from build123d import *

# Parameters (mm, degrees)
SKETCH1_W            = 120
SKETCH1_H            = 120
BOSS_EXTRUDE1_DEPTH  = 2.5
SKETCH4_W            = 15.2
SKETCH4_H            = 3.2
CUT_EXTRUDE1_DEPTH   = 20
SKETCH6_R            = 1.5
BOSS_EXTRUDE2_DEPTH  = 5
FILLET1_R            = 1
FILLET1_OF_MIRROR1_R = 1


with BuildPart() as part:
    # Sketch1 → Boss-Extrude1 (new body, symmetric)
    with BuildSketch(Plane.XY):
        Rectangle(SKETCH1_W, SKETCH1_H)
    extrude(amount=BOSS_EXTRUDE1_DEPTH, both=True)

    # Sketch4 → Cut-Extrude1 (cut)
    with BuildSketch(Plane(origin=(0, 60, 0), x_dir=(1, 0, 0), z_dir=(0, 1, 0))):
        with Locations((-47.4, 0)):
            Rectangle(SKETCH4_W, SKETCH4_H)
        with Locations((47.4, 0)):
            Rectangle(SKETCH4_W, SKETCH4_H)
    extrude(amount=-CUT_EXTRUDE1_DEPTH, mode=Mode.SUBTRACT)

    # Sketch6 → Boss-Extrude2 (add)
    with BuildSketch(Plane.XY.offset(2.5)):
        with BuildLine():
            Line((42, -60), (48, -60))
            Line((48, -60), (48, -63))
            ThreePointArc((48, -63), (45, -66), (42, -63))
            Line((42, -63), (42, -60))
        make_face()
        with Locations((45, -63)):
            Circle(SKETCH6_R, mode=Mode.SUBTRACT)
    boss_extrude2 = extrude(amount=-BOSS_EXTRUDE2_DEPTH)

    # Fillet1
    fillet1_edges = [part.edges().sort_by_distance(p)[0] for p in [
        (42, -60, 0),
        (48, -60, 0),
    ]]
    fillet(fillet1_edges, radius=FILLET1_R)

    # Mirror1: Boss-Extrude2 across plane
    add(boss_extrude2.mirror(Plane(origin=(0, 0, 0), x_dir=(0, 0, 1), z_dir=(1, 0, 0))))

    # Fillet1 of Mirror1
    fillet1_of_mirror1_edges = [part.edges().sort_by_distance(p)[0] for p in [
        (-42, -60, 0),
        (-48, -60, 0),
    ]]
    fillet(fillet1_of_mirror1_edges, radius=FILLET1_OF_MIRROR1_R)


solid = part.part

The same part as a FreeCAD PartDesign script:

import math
import FreeCAD as App
import Part
import Sketcher

V = App.Vector


def edges_at(feature, points):
    """Names of the edges that pass closest to the given points."""
    edges = feature.Shape.Edges
    near = lambda p: min(range(len(edges)), key=lambda i: edges[i].distToShape(Part.Vertex(*p))[0])
    return sorted({f"Edge{near(p) + 1}" for p in points})


def add_polygon(sketch, points):
    """Adds a closed chain of lines whose ends are joined by coincident constraints."""
    first, n = sketch.GeometryCount, len(points)
    for a, b in zip(points, points[1:] + points[:1]):
        sketch.addGeometry(Part.LineSegment(App.Vector(*a, 0), App.Vector(*b, 0)), False)
    for i in range(n):
        sketch.addConstraint(Sketcher.Constraint("Coincident", first + i, 2, first + (i + 1) % n, 1))

doc = App.newDocument("Part")
body = doc.addObject("PartDesign::Body", "Body")

# Sketch on XY plane
sketch1 = body.newObject("Sketcher::SketchObject", "Sketch")
sketch1.AttachmentSupport = (doc.getObject("XY_Plane"), [""])
sketch1.MapMode = "FlatFace"
add_polygon(sketch1, [(-60, 60), (-60, -60), (60, -60), (60, 60)])  # lines 0-3
sketch1.addConstraint(Sketcher.Constraint("Vertical", 0))
sketch1.addConstraint(Sketcher.Constraint("Horizontal", 1))
sketch1.addConstraint(Sketcher.Constraint("Vertical", 2))
sketch1.addConstraint(Sketcher.Constraint("Horizontal", 3))
sketch1.addConstraint(Sketcher.Constraint("Symmetric", 0, 2, 2, 2, -1, 1))
sketch1.addConstraint(Sketcher.Constraint("Equal", 3, 0))
sketch1.addConstraint(Sketcher.Constraint("DistanceX", 1, 1, 1, 2, 120.0))
pad1 = body.newObject("PartDesign::Pad", "Pad")
pad1.Profile = sketch1
pad1.Length = 5
pad1.Midplane = True

# Sketch on XZ plane
sketch2 = body.newObject("Sketcher::SketchObject", "Sketch001")
sketch2.AttachmentSupport = (doc.getObject("XZ_Plane"), [""])
sketch2.MapMode = "FlatFace"
sketch2.AttachmentOffset = App.Placement(V(0, 0, -60), App.Rotation())
add_polygon(sketch2, [(-55, -1.6), (-55, 1.6), (-39.8, 1.6), (-39.8, -1.6)])  # lines 0-3
add_polygon(sketch2, [(39.8, -1.6), (39.8, 1.6), (55, 1.6), (55, -1.6)])  # lines 4-7
sketch2.addConstraint(Sketcher.Constraint("Vertical", 0))
sketch2.addConstraint(Sketcher.Constraint("Horizontal", 1))
sketch2.addConstraint(Sketcher.Constraint("Vertical", 2))
sketch2.addConstraint(Sketcher.Constraint("Horizontal", 3))
sketch2.addConstraint(Sketcher.Constraint("Vertical", 4))
sketch2.addConstraint(Sketcher.Constraint("Horizontal", 5))
sketch2.addConstraint(Sketcher.Constraint("Vertical", 6))
sketch2.addConstraint(Sketcher.Constraint("Horizontal", 7))
sketch2.addConstraint(Sketcher.Constraint("Symmetric", 2, 2, 4, 2, -1, 1))
sketch2.addConstraint(Sketcher.Constraint("Symmetric", 0, 2, 6, 2, -1, 1))
sketch2.addConstraint(Sketcher.Constraint("Horizontal", 1, 2, 4, 2))
sketch2.addConstraint(Sketcher.Constraint("DistanceX", 1, 1, 1, 2, 15.2))
sketch2.addConstraint(Sketcher.Constraint("DistanceY", 0, 1, 0, 2, 3.2))
sketch2.addConstraint(Sketcher.Constraint("DistanceX", 0, 2, -1, 1, 55.0))
pocket1 = body.newObject("PartDesign::Pocket", "Pocket")
pocket1.Profile = sketch2
pocket1.Length = 20
pocket1.Reversed = True

# Sketch on XY plane
sketch3 = body.newObject("Sketcher::SketchObject", "Sketch002")
sketch3.AttachmentSupport = (doc.getObject("XY_Plane"), [""])
sketch3.MapMode = "FlatFace"
sketch3.AttachmentOffset = App.Placement(V(0, 0, 2.5), App.Rotation())
sketch3.addGeometry(Part.LineSegment(V(48, -60, 0), V(42, -60, 0)), False)
sketch3.addGeometry(Part.LineSegment(V(42, -60, 0), V(42, -63, 0)), False)
sketch3.addGeometry(Part.ArcOfCircle(Part.Circle(V(45, -63, 0), V(0, 0, 1), 3), math.radians(180), math.radians(360)), False)
sketch3.addGeometry(Part.LineSegment(V(48, -63, 0), V(48, -60, 0)), False)
sketch3.addGeometry(Part.Circle(V(45, -63, 0), V(0, 0, 1), 1.5), False)
sketch3.addConstraint(Sketcher.Constraint("Coincident", 0, 2, 1, 1))
sketch3.addConstraint(Sketcher.Constraint("Tangent", 1, 2, 2, 1))
sketch3.addConstraint(Sketcher.Constraint("Tangent", 2, 2, 3, 1))
sketch3.addConstraint(Sketcher.Constraint("Coincident", 3, 2, 0, 1))
sketch3.addConstraint(Sketcher.Constraint("Horizontal", 0))
sketch3.addConstraint(Sketcher.Constraint("Vertical", 1))
sketch3.addConstraint(Sketcher.Constraint("Vertical", 3))
sketch3.addConstraint(Sketcher.Constraint("Coincident", 4, 3, 2, 3))
sketch3.addConstraint(Sketcher.Constraint("Diameter", 4, 3.0))
sketch3.addConstraint(Sketcher.Constraint("Radius", 2, 3.0))
sketch3.addConstraint(Sketcher.Constraint("DistanceY", 1, 2, 1, 1, 3.0))
sketch3.addConstraint(Sketcher.Constraint("DistanceX", -1, 1, 2, 3, 45.0))
sketch3.addConstraint(Sketcher.Constraint("DistanceY", 2, 3, -1, 1, 63.0))
pad2 = body.newObject("PartDesign::Pad", "Pad001")
pad2.Profile = sketch3
pad2.Length = 5
pad2.Reversed = True
doc.recompute()

fillet = body.newObject("PartDesign::Fillet", "Fillet")
fillet.Base = (pad2, edges_at(pad2, [(42, -60, 0), (48, -60, 0)]))
fillet.Radius = 1
doc.recompute()

mirrored = body.newObject("PartDesign::Mirrored", "Mirrored")
mirrored.Originals = [pad2]
mirrored.MirrorPlane = (doc.getObject("YZ_Plane"), [""])
body.Tip = mirrored
doc.recompute()

fillet2 = body.newObject("PartDesign::Fillet", "Fillet001")
fillet2.Base = (mirrored, edges_at(mirrored, [(-42, -60, 0), (-48, -60, 0)]))
fillet2.Radius = 1

doc.recompute()
